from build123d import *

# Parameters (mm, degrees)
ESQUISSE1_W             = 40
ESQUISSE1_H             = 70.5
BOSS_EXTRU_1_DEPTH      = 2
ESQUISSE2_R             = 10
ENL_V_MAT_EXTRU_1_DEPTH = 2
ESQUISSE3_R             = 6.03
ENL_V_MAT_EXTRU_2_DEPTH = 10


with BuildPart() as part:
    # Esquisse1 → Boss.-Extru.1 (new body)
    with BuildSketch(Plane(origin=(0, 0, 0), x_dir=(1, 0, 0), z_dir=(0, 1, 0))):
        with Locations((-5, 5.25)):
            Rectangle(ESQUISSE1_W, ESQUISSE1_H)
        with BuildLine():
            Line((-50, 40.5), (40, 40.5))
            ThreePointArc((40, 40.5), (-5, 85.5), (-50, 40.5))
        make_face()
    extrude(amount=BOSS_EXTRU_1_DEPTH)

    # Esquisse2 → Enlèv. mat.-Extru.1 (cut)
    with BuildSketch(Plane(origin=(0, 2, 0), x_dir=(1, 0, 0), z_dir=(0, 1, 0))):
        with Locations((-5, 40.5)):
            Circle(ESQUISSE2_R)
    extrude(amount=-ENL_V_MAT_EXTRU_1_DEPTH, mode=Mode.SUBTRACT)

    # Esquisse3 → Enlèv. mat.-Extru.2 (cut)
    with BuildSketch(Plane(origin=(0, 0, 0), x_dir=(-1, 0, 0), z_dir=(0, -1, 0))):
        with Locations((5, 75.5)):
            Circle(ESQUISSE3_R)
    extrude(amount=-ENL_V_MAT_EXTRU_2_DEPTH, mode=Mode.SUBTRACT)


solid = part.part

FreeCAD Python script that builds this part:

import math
import FreeCAD as App
import Part
import Sketcher

V = App.Vector

doc = App.newDocument("Part")
body = doc.addObject("PartDesign::Body", "Body")

# Sketch on XZ plane
sketch1 = body.newObject("Sketcher::SketchObject", "Sketch")
sketch1.AttachmentSupport = (doc.getObject("XZ_Plane"), [""])
sketch1.MapMode = "FlatFace"
sketch1.addGeometry([
    Part.LineSegment(V(-25, -40, 0), V(-25, 30, 0)),  # 0
    Part.LineSegment(V(-25, 30, 0), V(15, 30, 0)),  # 1
    Part.LineSegment(V(15, 30, 0), V(15, -40, 0)),  # 2
    Part.LineSegment(V(15, -40, 0), V(40, -40, 0)),  # 3
    Part.ArcOfCircle(Part.Circle(V(-5, -40, 0), V(0, 0, 1), 45), math.radians(180), math.radians(360)),  # 4
    Part.LineSegment(V(-50, -40, 0), V(-25, -40, 0)),  # 5
], False)
sketch1.addConstraint([
    Sketcher.Constraint("Coincident", 0, 2, 1, 1),
    Sketcher.Constraint("Coincident", 1, 2, 2, 1),
    Sketcher.Constraint("Coincident", 2, 2, 3, 1),
    Sketcher.Constraint("Coincident", 3, 2, 4, 2),
    Sketcher.Constraint("Coincident", 4, 1, 5, 1),
    Sketcher.Constraint("Coincident", 5, 2, 0, 1),
    Sketcher.Constraint("Vertical", 0),
    Sketcher.Constraint("Horizontal", 1),
    Sketcher.Constraint("Vertical", 2),
    Sketcher.Constraint("Horizontal", 3),
    Sketcher.Constraint("Horizontal", 5),
    Sketcher.Constraint("Horizontal", 4, 3, 2, 2),
    Sketcher.Constraint("Horizontal", 3, 2, 4, 1),
    Sketcher.Constraint("Equal", 3, 5),
    Sketcher.Constraint("Radius", 4, 45.0),
    Sketcher.Constraint("DistanceX", 1, 1, 1, 2, 40.0),
    Sketcher.Constraint("DistanceY", 0, 1, 0, 2, 70.5),
    Sketcher.Constraint("DistanceX", 4, 3, -1, 1, 5.0),
    Sketcher.Constraint("DistanceY", -1, 1, 0, 2, 30.0),
])
pad1 = body.newObject("PartDesign::Pad", "Pad")
pad1.Profile = sketch1
pad1.Length = 2
pad1.Reversed = True

# Sketch on XZ plane
sketch2 = body.newObject("Sketcher::SketchObject", "Sketch001")
sketch2.AttachmentSupport = (doc.getObject("XZ_Plane"), [""])
sketch2.MapMode = "FlatFace"
sketch2.AttachmentOffset = App.Placement(V(0, 0, -2), App.Rotation())
sketch2.addGeometry(Part.Circle(V(-5, -40, 0), V(0, 0, 1), 10), False)
sketch2.addConstraint([
    Sketcher.Constraint("Diameter", 0, 20.0),
    Sketcher.Constraint("DistanceX", 0, 3, -1, 1, 5.0),
    Sketcher.Constraint("DistanceY", 0, 3, -1, 1, 40.5),
])
pocket1 = body.newObject("PartDesign::Pocket", "Pocket")
pocket1.Profile = sketch2
pocket1.Length = 2
pocket1.Reversed = True

# Sketch on XZ plane
sketch3 = body.newObject("Sketcher::SketchObject", "Sketch002")
sketch3.AttachmentSupport = (doc.getObject("XZ_Plane"), [""])
sketch3.MapMode = "FlatFace"
sketch3.addGeometry(Part.Circle(V(-5, -76, 0), V(0, 0, 1), 6), False)
sketch3.addConstraint([
    Sketcher.Constraint("Diameter", 0, 12.06),
    Sketcher.Constraint("DistanceX", 0, 3, -1, 1, 5.0),
    Sketcher.Constraint("DistanceY", 0, 3, -1, 1, 75.5),
])
pocket2 = body.newObject("PartDesign::Pocket", "Pocket001")
pocket2.Profile = sketch3
pocket2.Length = 10

doc.recompute()
